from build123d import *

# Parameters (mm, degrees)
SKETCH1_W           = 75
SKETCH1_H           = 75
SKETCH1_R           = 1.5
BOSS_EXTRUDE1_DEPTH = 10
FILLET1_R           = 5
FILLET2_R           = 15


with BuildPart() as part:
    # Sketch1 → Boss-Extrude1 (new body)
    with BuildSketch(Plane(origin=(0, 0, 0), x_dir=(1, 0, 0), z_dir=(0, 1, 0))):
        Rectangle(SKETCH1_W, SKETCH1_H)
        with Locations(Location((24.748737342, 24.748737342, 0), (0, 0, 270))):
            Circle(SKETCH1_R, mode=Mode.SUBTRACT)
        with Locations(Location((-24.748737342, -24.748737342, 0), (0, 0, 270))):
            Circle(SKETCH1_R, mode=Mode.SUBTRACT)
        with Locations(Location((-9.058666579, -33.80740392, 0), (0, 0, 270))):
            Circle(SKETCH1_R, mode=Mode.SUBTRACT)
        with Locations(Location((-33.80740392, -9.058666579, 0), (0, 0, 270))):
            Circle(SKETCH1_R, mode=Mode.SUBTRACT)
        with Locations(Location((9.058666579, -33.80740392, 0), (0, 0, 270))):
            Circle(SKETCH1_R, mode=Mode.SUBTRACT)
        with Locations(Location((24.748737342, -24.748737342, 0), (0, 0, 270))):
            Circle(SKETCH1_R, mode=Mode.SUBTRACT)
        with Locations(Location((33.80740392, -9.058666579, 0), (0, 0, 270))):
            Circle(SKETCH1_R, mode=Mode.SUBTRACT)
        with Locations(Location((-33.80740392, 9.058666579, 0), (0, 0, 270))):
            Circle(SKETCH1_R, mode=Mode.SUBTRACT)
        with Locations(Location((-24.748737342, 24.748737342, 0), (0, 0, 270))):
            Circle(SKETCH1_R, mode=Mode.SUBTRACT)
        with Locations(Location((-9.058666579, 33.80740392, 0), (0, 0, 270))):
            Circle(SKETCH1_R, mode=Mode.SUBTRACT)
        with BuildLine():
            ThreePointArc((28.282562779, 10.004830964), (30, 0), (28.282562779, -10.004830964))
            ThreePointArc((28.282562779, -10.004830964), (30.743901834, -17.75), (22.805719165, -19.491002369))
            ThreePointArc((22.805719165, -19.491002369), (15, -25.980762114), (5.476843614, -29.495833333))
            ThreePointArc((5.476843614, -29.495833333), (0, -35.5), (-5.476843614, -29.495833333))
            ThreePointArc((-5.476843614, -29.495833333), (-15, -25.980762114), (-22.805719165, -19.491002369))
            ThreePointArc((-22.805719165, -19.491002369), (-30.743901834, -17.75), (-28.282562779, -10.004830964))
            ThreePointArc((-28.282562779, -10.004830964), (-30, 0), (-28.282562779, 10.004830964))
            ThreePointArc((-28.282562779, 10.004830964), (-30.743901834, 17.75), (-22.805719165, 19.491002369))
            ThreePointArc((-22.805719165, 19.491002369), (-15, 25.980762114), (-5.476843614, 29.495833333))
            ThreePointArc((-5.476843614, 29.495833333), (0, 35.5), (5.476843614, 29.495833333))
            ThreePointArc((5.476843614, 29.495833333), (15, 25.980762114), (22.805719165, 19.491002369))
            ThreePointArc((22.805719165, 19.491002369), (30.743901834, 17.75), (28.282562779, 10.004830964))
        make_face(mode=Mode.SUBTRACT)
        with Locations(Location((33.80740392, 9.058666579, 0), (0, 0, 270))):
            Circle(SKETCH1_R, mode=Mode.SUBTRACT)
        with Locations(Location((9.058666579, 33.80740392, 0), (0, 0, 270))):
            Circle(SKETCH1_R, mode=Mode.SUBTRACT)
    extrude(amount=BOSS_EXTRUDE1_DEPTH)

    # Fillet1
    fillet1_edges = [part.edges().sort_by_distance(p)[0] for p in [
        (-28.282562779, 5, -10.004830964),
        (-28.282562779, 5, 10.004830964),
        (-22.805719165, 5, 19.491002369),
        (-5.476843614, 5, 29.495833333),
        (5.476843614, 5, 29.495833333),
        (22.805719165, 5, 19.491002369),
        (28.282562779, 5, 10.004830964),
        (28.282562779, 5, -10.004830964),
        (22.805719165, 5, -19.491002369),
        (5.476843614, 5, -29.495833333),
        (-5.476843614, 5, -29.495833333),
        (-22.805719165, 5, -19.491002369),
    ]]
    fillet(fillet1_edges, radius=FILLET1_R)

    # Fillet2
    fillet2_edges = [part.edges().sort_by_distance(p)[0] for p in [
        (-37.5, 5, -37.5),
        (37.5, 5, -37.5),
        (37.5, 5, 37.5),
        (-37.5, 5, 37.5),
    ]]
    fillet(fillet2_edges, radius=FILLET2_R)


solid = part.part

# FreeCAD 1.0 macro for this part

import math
import FreeCAD as App
import Part
import Sketcher
from FreeCAD import Vector
Q = App.Units.Quantity


def edges_at(feature, points):
    """Names of the edges that pass closest to the given points."""
    edges = feature.Shape.Edges
    near = lambda p: min(range(len(edges)), key=lambda i: edges[i].distToShape(Part.Vertex(*p))[0])
    return sorted({f"Edge{near(p) + 1}" for p in points})


def add_polygon(sketch, points):
    """Adds a closed chain of lines whose ends are joined by coincident constraints."""
    first, n = sketch.GeometryCount, len(points)
    for a, b in zip(points, points[1:] + points[:1]):
        sketch.addGeometry(Part.LineSegment(App.Vector(*a, 0), App.Vector(*b, 0)), False)
    for i in range(n):
        sketch.addConstraint(Sketcher.Constraint("Coincident", first + i, 2, first + (i + 1) % n, 1))

doc = App.newDocument("Part")
body = doc.addObject("PartDesign::Body", "Body")

# Sketch on XZ plane
sketch1 = body.newObject("Sketcher::SketchObject", "Sketch")
sketch1.AttachmentSupport = (doc.getObject("XZ_Plane"), [""])
sketch1.MapMode = "FlatFace"
add_polygon(sketch1, [(-37.5, -37.5), (-37.5, 37.5), (37.5, 37.5), (37.5, -37.5)])  # lines 0-3
sketch1.addGeometry(Part.Circle(Vector(-24.7, 24.7, 0), Vector(0, 0, 1), 1.5), False)  # 4
sketch1.addGeometry(Part.Circle(Vector(-9.1, 33.8, 0), Vector(0, 0, 1), 1.5), False)  # 5
sketch1.addGeometry(Part.Circle(Vector(-33.8, 9.1, 0), Vector(0, 0, 1), 1.5), False)  # 6
sketch1.addGeometry(Part.Circle(Vector(9.1, 33.8, 0), Vector(0, 0, 1), 1.5), False)  # 7
sketch1.addGeometry(Part.Circle(Vector(24.7, 24.7, 0), Vector(0, 0, 1), 1.5), False)  # 8
sketch1.addGeometry(Part.Circle(Vector(33.8, 9.1, 0), Vector(0, 0, 1), 1.5), False)  # 9
sketch1.addGeometry(Part.Circle(Vector(-33.8, -9.1, 0), Vector(0, 0, 1), 1.5), False)  # 10
sketch1.addGeometry(Part.Circle(Vector(-24.7, -24.7, 0), Vector(0, 0, 1), 1.5), False)  # 11
sketch1.addGeometry(Part.Circle(Vector(-9.1, -33.8, 0), Vector(0, 0, 1), 1.5), False)  # 12
sketch1.addGeometry(Part.ArcOfCircle(Part.Circle(Vector(26, -15, 0), Vector(0, 0, 1), 5.5), math.radians(-125), math.radians(65)), False)  # 13
sketch1.addGeometry(Part.ArcOfCircle(Part.Circle(Vector(0, 0, 0), Vector(0, 0, 1), 30), math.radians(-19), math.radians(19)), False)  # 14
sketch1.addGeometry(Part.ArcOfCircle(Part.Circle(Vector(26, 15, 0), Vector(0, 0, 1), 5.5), math.radians(-65), math.radians(125)), False)  # 15
sketch1.addGeometry(Part.ArcOfCircle(Part.Circle(Vector(0, 0, 0), Vector(0, 0, 1), 30), math.radians(41), math.radians(79)), False)  # 16
sketch1.addGeometry(Part.ArcOfCircle(Part.Circle(Vector(0, 30, 0), Vector(0, 0, 1), 5.5), math.radians(-5), math.radians(185)), False)  # 17
sketch1.addGeometry(Part.ArcOfCircle(Part.Circle(Vector(0, 0, 0), Vector(0, 0, 1), 30), math.radians(101), math.radians(139)), False)  # 18
sketch1.addGeometry(Part.ArcOfCircle(Part.Circle(Vector(-26, 15, 0), Vector(0, 0, 1), 5.5), math.radians(55), math.radians(245)), False)  # 19
sketch1.addGeometry(Part.ArcOfCircle(Part.Circle(Vector(0, 0, 0), Vector(0, 0, 1), 30), math.radians(161), math.radians(199)), False)  # 20
sketch1.addGeometry(Part.ArcOfCircle(Part.Circle(Vector(-26, -15, 0), Vector(0, 0, 1), 5.5), math.radians(115), math.radians(305)), False)  # 21
sketch1.addGeometry(Part.ArcOfCircle(Part.Circle(Vector(0, 0, 0), Vector(0, 0, 1), 30), math.radians(-139), math.radians(-101)), False)  # 22
sketch1.addGeometry(Part.ArcOfCircle(Part.Circle(Vector(0, -30, 0), Vector(0, 0, 1), 5.5), math.radians(175), math.radians(365)), False)  # 23
sketch1.addGeometry(Part.ArcOfCircle(Part.Circle(Vector(0, 0, 0), Vector(0, 0, 1), 30), math.radians(-79), math.radians(-41)), False)  # 24
sketch1.addGeometry(Part.Circle(Vector(33.8, -9.1, 0), Vector(0, 0, 1), 1.5), False)  # 25
sketch1.addGeometry(Part.Circle(Vector(9.1, -33.8, 0), Vector(0, 0, 1), 1.5), False)  # 26
sketch1.addGeometry(Part.Circle(Vector(24.7, -24.7, 0), Vector(0, 0, 1), 1.5), False)  # 27
sketch1.addConstraint(Sketcher.Constraint("Coincident", 13, 2, 14, 1))
sketch1.addConstraint(Sketcher.Constraint("Coincident", 14, 2, 15, 1))
sketch1.addConstraint(Sketcher.Constraint("Coincident", 15, 2, 16, 1))
sketch1.addConstraint(Sketcher.Constraint("Coincident", 16, 2, 17, 1))
sketch1.addConstraint(Sketcher.Constraint("Coincident", 17, 2, 18, 1))
sketch1.addConstraint(Sketcher.Constraint("Coincident", 18, 2, 19, 1))
sketch1.addConstraint(Sketcher.Constraint("Coincident", 19, 2, 20, 1))
sketch1.addConstraint(Sketcher.Constraint("Coincident", 20, 2, 21, 1))
sketch1.addConstraint(Sketcher.Constraint("Coincident", 21, 2, 22, 1))
sketch1.addConstraint(Sketcher.Constraint("Coincident", 22, 2, 23, 1))
sketch1.addConstraint(Sketcher.Constraint("Coincident", 23, 2, 24, 1))
sketch1.addConstraint(Sketcher.Constraint("Coincident", 24, 2, 13, 1))
sketch1.addConstraint(Sketcher.Constraint("Vertical", 0))
sketch1.addConstraint(Sketcher.Constraint("Horizontal", 1))
sketch1.addConstraint(Sketcher.Constraint("Vertical", 2))
sketch1.addConstraint(Sketcher.Constraint("Horizontal", 3))
sketch1.addConstraint(Sketcher.Constraint("Coincident", 14, 3, -1, 1))
sketch1.addConstraint(Sketcher.Constraint("Coincident", 16, 3, -1, 1))
sketch1.addConstraint(Sketcher.Constraint("Coincident", 18, 3, -1, 1))
sketch1.addConstraint(Sketcher.Constraint("Coincident", 20, 3, -1, 1))
sketch1.addConstraint(Sketcher.Constraint("Coincident", 22, 3, -1, 1))
sketch1.addConstraint(Sketcher.Constraint("Coincident", 24, 3, -1, 1))
sketch1.addConstraint(Sketcher.Constraint("Equal", 4, 5))
sketch1.addConstraint(Sketcher.Constraint("Equal", 5, 6))
sketch1.addConstraint(Sketcher.Constraint("Equal", 6, 7))
sketch1.addConstraint(Sketcher.Constraint("Equal", 7, 8))
sketch1.addConstraint(Sketcher.Constraint("Equal", 8, 9))
sketch1.addConstraint(Sketcher.Constraint("Equal", 9, 10))
sketch1.addConstraint(Sketcher.Constraint("Equal", 10, 11))
sketch1.addConstraint(Sketcher.Constraint("Equal", 11, 12))
sketch1.addConstraint(Sketcher.Constraint("Equal", 13, 15))
sketch1.addConstraint(Sketcher.Constraint("Equal", 14, 16))
sketch1.addConstraint(Sketcher.Constraint("Equal", 15, 17))
sketch1.addConstraint(Sketcher.Constraint("Equal", 16, 18))
sketch1.addConstraint(Sketcher.Constraint("Equal", 17, 19))
sketch1.addConstraint(Sketcher.Constraint("Equal", 18, 20))
sketch1.addConstraint(Sketcher.Constraint("Equal", 19, 21))
sketch1.addConstraint(Sketcher.Constraint("Equal", 20, 22))
sketch1.addConstraint(Sketcher.Constraint("Equal", 21, 23))
sketch1.addConstraint(Sketcher.Constraint("Equal", 22, 24))
sketch1.addConstraint(Sketcher.Constraint("Equal", 12, 25))
sketch1.addConstraint(Sketcher.Constraint("Equal", 25, 26))
sketch1.addConstraint(Sketcher.Constraint("Equal", 26, 27))
sketch1.addConstraint(Sketcher.Constraint("Symmetric", 9, 3, 10, 3, -1, 1))
sketch1.addConstraint(Sketcher.Constraint("Symmetric", 8, 3, 11, 3, -1, 1))
sketch1.addConstraint(Sketcher.Constraint("Symmetric", 7, 3, 12, 3, -1, 1))
sketch1.addConstraint(Sketcher.Constraint("Symmetric", 13, 3, 19, 3, -1, 1))
sketch1.addConstraint(Sketcher.Constraint("Symmetric", 15, 3, 21, 3, -1, 1))
sketch1.addConstraint(Sketcher.Constraint("Symmetric", 17, 3, 23, 3, -1, 1))
sketch1.addConstraint(Sketcher.Constraint("Symmetric", 6, 3, 25, 3, -1, 1))
sketch1.addConstraint(Sketcher.Constraint("Symmetric", 5, 3, 26, 3, -1, 1))
sketch1.addConstraint(Sketcher.Constraint("Symmetric", 4, 3, 27, 3, -1, 1))
sketch1.addConstraint(Sketcher.Constraint("Symmetric", 0, 2, 2, 2, -1, 1))
sketch1.addConstraint(Sketcher.Constraint("Symmetric", 5, 3, 7, 3, -2))
sketch1.addConstraint(Sketcher.Constraint("Symmetric", 4, 3, 8, 3, -2))
sketch1.addConstraint(Sketcher.Constraint("Symmetric", 6, 3, 9, 3, -2))
sketch1.addConstraint(Sketcher.Constraint("Symmetric", 15, 3, 19, 3, -2))
sketch1.addConstraint(Sketcher.Constraint("PointOnObject", 17, 3, -2))
sketch1.addConstraint(Sketcher.Constraint("Equal", 3, 0))
sketch1.addConstraint(Sketcher.Constraint("Diameter", 4, Q("3 mm")))
sketch1.addConstraint(Sketcher.Constraint("Radius", 14, Q("30 mm")))
sketch1.addConstraint(Sketcher.Constraint("Radius", 13, Q("5.5 mm")))
sketch1.addConstraint(Sketcher.Constraint("DistanceX", 1, 1, 1, 2, Q("75 mm")))
sketch1.addConstraint(Sketcher.Constraint("DistanceY", 13, 3, -1, 1, Q("15 mm")))
sketch1.addConstraint(Sketcher.Constraint("DistanceY", -1, 1, 17, 3, Q("30 mm")))
sketch1.addConstraint(Sketcher.Constraint("DistanceX", 11, 3, 13, 3, Q("50.729499 mm")))
sketch1.addConstraint(Sketcher.Constraint("DistanceX", 13, 3, 13, 2, Q("2.301801 mm")))
sketch1.addConstraint(Sketcher.Constraint("DistanceY", 15, 2, 7, 3, Q("14.316402 mm")))
sketch1.addConstraint(Sketcher.Constraint("DistanceX", 4, 3, 5, 3, Q("15.690071 mm")))
sketch1.addConstraint(Sketcher.Constraint("DistanceY", 6, 3, 4, 3, Q("15.690071 mm")))
sketch1.addConstraint(Sketcher.Constraint("DistanceX", 6, 3, 7, 3, Q("42.86607 mm")))
sketch1.addConstraint(Sketcher.Constraint("DistanceY", 10, 3, 5, 3, Q("42.86607 mm")))
pad1 = body.newObject("PartDesign::Pad", "Pad")
pad1.Profile = sketch1
pad1.Length = 10
pad1.Reversed = True
doc.recompute()

fillet = body.newObject("PartDesign::Fillet", "Fillet")
fillet.Base = (pad1, edges_at(pad1, [
    (-28.283, 5, -10.005),
    (-28.283, 5, 10.005),
    (-22.806, 5, 19.491),
    (-5.477, 5, 29.496),
    (5.477, 5, 29.496),
    (22.806, 5, 19.491),
    (28.283, 5, 10.005),
    (28.283, 5, -10.005),
    (22.806, 5, -19.491),
    (5.477, 5, -29.496),
    (-5.477, 5, -29.496),
    (-22.806, 5, -19.491),
]))
fillet.Radius = 5
doc.recompute()

fillet2 = body.newObject("PartDesign::Fillet", "Fillet001")
fillet2.Base = (fillet, edges_at(fillet, [
    (-37.5, 5, -37.5),
    (37.5, 5, -37.5),
    (37.5, 5, 37.5),
    (-37.5, 5, 37.5),
]))
fillet2.Radius = 15

doc.recompute()
